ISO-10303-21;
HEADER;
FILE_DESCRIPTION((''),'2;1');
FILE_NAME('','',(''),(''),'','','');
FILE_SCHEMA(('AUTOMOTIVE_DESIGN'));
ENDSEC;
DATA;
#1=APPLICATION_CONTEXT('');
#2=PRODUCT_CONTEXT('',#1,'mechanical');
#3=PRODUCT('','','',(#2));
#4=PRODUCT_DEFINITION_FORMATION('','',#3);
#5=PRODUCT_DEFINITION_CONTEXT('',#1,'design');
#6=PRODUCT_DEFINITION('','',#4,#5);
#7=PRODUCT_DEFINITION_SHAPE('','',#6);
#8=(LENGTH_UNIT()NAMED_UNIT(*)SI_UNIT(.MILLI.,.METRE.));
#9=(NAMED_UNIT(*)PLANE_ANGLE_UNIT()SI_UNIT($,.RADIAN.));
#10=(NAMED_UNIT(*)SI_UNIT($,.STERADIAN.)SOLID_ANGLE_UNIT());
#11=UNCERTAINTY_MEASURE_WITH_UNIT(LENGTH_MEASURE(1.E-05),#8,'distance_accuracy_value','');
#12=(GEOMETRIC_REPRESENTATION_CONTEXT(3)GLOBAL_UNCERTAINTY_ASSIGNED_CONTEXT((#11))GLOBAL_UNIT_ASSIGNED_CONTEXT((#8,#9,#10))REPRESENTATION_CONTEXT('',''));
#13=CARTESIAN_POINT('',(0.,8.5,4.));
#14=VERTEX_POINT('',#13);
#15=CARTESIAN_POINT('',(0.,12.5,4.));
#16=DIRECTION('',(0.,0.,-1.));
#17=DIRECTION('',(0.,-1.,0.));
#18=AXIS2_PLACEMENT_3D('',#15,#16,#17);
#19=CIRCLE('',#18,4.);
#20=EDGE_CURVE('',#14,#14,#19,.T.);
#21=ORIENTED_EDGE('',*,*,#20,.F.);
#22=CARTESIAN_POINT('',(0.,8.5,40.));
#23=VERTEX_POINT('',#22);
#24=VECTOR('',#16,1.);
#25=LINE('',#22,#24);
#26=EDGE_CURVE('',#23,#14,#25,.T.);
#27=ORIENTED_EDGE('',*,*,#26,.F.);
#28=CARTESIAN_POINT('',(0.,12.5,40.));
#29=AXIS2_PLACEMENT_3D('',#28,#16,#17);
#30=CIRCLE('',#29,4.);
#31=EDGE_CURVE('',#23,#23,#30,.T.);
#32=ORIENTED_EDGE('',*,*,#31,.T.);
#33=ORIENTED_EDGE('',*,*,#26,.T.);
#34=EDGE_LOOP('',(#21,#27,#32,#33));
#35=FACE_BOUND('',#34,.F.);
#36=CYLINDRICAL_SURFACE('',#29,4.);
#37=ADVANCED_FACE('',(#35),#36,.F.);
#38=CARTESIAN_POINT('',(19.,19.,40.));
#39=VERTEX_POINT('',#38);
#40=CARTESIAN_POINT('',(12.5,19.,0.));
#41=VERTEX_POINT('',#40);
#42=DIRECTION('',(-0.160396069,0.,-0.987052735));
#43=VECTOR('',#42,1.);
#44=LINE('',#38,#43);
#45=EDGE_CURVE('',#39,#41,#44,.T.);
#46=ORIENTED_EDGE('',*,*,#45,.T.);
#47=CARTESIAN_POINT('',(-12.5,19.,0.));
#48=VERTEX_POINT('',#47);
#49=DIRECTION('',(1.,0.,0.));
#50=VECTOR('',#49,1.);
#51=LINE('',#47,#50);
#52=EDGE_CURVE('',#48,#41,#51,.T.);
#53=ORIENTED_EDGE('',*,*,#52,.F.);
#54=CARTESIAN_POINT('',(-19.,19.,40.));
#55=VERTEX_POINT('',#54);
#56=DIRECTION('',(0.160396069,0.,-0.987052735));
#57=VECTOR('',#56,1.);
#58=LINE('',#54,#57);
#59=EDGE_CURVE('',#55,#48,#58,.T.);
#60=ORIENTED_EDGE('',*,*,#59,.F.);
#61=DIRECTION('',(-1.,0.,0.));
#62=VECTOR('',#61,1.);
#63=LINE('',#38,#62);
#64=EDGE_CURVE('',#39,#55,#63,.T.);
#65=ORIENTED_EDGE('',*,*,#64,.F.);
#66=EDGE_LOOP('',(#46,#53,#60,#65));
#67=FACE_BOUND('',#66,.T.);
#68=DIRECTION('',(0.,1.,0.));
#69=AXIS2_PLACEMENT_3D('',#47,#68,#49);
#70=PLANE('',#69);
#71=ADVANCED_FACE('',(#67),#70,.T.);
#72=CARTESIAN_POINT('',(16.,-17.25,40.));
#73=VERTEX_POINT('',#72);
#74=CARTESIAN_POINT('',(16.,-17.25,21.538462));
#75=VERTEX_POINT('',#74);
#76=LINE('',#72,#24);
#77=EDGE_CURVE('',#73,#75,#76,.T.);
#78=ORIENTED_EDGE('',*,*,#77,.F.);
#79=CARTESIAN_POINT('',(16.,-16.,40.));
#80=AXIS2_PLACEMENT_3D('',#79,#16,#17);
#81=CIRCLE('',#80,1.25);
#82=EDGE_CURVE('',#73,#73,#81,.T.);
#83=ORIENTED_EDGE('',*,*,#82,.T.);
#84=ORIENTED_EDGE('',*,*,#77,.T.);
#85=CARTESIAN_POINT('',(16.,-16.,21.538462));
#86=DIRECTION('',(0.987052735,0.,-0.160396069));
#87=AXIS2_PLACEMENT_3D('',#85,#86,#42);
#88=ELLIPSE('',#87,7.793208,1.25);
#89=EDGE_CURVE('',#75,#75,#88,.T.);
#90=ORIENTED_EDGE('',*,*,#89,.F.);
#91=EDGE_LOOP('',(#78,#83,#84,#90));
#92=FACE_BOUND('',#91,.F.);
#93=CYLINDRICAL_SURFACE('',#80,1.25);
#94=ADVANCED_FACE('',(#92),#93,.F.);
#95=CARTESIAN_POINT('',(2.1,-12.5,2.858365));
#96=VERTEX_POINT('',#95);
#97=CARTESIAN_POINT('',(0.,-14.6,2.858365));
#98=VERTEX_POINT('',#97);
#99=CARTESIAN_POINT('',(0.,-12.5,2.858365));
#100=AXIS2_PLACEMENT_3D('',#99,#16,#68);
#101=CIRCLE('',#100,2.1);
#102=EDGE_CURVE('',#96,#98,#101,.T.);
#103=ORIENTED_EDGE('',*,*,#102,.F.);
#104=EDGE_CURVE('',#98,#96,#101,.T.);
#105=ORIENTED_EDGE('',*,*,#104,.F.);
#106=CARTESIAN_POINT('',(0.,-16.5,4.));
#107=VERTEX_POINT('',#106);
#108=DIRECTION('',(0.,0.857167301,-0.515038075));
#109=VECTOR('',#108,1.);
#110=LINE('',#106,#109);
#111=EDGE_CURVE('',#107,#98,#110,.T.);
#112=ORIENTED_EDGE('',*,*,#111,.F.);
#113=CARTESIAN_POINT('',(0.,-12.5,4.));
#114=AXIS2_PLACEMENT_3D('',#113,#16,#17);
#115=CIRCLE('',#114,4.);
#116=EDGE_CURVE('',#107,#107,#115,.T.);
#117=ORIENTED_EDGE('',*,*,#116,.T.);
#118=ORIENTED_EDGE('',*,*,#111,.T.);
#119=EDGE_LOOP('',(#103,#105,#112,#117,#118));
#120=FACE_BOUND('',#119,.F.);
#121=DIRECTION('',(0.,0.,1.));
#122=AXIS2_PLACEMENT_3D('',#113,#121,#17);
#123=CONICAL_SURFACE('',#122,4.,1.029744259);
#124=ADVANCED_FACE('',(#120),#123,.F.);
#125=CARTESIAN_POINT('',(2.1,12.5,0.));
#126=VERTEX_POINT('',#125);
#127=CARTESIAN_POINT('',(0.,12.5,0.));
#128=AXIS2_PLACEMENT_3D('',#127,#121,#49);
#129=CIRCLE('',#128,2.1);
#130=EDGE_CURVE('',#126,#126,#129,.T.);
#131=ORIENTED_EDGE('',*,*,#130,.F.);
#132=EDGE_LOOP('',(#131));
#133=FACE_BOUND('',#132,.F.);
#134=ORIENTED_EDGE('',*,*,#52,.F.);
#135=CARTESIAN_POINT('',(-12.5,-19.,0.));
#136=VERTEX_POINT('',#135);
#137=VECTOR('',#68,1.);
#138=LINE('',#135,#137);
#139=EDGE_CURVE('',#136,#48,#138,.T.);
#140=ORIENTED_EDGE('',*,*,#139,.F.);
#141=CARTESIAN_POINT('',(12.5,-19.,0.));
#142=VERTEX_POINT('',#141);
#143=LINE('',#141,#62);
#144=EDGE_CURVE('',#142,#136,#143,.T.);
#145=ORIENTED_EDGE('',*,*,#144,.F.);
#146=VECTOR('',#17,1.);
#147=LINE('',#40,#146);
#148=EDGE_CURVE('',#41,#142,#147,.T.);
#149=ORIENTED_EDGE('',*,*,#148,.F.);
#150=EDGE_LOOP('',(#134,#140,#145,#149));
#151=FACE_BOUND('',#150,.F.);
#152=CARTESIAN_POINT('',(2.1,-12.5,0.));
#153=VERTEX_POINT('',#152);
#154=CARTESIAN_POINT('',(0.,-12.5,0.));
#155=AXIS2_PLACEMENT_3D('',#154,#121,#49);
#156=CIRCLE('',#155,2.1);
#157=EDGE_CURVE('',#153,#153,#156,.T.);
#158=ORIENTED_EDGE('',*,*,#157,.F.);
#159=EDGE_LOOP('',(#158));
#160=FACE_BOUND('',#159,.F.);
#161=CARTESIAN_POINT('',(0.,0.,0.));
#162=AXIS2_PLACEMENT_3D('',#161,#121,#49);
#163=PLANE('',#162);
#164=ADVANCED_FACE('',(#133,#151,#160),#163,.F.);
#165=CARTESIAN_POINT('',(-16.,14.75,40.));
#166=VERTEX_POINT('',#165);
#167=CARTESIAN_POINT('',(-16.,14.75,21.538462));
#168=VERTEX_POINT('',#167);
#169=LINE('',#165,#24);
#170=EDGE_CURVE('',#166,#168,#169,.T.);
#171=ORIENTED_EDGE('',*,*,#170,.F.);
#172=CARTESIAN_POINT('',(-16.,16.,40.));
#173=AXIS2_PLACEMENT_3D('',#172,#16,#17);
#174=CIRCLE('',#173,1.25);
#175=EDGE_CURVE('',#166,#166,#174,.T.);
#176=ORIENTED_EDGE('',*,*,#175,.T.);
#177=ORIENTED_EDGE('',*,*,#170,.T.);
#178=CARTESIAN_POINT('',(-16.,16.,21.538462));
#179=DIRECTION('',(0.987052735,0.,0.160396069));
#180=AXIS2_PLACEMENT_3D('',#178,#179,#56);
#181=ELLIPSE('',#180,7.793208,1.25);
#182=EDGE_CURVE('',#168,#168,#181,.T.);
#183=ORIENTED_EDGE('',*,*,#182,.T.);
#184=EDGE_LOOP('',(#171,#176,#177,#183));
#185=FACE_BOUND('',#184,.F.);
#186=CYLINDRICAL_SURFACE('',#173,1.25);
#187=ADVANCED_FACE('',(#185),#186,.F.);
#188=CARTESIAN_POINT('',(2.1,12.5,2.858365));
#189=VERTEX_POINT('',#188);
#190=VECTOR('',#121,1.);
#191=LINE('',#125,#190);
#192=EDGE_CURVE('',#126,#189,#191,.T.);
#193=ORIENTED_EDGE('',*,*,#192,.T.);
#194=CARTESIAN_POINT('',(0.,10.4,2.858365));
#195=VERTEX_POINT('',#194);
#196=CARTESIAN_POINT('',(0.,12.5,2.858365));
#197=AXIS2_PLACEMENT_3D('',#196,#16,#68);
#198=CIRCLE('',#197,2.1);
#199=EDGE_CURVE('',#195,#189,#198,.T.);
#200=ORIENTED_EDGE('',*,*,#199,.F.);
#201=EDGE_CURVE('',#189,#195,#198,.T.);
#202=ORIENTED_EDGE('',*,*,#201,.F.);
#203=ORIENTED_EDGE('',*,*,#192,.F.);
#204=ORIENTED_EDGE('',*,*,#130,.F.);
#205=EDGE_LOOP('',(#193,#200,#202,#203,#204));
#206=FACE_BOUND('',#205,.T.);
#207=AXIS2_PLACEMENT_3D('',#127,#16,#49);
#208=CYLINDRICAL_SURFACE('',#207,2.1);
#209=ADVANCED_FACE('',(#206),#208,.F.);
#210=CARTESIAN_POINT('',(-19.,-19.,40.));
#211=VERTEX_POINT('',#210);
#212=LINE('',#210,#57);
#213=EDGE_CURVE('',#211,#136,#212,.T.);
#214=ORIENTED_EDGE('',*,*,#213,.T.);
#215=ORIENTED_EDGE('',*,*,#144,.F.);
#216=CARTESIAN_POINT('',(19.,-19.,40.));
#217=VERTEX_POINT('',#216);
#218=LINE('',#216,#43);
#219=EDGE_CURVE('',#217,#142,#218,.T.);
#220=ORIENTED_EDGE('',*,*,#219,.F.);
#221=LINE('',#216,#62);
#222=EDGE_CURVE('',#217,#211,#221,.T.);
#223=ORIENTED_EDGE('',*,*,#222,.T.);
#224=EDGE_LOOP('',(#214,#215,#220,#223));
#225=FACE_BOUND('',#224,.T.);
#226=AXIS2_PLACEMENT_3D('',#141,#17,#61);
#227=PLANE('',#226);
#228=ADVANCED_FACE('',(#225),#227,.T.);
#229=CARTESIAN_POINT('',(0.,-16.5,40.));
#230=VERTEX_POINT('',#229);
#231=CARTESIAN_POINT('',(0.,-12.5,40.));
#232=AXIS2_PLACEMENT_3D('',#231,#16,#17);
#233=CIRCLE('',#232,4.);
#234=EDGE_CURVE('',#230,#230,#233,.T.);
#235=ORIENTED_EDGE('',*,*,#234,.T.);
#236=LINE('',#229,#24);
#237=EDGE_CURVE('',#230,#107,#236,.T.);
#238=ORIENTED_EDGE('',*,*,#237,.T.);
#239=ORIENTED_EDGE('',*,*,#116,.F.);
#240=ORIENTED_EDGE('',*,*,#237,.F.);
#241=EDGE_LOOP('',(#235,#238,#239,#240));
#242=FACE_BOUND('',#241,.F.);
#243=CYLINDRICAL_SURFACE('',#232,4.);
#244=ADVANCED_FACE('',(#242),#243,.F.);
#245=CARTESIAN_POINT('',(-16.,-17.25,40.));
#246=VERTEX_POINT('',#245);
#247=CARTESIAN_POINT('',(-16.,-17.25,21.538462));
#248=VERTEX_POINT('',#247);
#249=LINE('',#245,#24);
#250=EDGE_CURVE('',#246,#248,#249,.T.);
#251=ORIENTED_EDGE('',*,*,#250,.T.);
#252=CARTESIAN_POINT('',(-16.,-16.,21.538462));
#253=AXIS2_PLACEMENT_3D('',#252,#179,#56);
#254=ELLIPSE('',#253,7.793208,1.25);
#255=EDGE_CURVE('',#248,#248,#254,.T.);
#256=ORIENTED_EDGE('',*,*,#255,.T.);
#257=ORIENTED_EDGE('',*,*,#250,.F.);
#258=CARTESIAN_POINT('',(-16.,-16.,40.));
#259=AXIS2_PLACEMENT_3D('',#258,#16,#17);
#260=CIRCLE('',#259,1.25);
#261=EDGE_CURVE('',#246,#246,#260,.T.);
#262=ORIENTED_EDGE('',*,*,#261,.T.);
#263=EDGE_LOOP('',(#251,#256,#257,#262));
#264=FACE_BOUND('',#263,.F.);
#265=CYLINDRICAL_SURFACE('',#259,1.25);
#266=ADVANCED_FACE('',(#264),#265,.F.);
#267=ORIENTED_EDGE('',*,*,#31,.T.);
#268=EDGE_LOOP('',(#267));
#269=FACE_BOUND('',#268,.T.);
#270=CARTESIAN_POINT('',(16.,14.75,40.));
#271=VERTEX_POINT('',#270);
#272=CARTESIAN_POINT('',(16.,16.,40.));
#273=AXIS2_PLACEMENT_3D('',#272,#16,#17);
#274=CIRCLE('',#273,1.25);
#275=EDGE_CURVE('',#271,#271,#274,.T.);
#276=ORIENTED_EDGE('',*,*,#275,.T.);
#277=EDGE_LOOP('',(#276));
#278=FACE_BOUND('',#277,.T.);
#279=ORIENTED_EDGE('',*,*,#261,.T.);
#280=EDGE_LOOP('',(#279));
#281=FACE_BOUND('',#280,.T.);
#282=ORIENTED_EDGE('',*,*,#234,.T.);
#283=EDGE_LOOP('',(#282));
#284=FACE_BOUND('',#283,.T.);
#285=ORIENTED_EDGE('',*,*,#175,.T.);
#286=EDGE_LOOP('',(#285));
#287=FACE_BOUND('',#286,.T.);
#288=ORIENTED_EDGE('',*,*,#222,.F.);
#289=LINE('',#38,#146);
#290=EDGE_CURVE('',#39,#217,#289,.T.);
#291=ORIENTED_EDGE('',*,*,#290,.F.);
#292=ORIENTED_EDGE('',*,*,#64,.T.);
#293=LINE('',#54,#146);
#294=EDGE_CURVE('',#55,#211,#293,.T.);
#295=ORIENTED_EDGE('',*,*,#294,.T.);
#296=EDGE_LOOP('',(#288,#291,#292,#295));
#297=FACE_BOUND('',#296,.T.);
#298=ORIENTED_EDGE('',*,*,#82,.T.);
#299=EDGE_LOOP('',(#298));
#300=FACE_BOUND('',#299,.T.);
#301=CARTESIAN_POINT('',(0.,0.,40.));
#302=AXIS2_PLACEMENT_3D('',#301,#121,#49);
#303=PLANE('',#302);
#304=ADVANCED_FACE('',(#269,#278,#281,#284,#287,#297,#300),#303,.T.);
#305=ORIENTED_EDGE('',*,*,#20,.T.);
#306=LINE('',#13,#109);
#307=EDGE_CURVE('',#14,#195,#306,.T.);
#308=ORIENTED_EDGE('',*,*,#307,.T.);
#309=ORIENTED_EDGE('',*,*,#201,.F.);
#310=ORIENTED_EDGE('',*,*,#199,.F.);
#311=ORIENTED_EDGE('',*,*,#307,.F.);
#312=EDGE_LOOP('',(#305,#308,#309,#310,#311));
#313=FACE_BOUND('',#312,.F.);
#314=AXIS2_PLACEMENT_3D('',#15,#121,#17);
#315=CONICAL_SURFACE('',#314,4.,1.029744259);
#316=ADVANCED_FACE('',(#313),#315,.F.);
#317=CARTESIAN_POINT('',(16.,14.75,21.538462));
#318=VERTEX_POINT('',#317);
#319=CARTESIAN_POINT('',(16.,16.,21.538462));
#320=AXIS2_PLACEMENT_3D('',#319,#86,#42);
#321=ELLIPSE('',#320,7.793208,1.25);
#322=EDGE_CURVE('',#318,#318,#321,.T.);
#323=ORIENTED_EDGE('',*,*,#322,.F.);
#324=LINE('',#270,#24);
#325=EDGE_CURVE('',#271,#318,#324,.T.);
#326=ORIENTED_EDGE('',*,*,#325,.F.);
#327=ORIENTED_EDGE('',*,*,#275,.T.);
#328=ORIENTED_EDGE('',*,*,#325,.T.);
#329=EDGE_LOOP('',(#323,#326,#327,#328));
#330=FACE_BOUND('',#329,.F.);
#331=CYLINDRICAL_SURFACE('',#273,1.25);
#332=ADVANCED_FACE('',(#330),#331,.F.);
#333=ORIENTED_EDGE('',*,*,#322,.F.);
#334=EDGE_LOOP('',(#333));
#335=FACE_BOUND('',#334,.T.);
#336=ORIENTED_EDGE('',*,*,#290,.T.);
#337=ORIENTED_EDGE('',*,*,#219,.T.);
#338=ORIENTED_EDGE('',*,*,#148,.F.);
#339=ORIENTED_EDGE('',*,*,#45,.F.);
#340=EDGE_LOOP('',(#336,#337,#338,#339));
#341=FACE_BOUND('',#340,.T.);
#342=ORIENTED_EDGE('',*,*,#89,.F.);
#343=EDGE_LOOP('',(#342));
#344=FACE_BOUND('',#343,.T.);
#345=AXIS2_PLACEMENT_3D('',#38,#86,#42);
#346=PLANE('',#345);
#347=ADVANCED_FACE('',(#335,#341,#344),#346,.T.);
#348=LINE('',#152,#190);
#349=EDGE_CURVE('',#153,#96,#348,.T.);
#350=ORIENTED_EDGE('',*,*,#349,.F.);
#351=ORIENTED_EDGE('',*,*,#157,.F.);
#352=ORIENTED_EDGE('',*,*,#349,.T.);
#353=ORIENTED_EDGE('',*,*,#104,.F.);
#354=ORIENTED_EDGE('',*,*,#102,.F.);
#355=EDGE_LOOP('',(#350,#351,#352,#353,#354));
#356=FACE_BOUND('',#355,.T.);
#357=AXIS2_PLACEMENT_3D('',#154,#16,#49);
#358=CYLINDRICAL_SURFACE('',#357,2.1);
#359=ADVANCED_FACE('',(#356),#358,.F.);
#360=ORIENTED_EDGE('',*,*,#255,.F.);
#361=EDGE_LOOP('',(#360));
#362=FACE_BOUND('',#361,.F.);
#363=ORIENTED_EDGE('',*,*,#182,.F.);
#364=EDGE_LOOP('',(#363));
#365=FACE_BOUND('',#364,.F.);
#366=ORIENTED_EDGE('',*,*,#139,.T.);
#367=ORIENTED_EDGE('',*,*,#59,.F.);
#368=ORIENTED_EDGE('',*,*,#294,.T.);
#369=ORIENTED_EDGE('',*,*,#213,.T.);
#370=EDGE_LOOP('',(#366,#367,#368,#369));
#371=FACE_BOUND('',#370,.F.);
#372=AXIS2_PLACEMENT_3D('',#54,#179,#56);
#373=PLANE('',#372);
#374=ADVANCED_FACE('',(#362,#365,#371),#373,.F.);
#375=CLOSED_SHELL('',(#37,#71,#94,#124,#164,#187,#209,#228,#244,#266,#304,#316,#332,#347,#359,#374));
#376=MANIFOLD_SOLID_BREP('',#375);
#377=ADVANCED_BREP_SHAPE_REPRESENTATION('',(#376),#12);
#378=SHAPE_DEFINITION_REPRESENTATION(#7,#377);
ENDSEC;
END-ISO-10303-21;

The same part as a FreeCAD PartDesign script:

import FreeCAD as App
import Part
import Sketcher
from FreeCAD import Vector
Q = App.Units.Quantity

doc = App.newDocument("Part")
body = doc.addObject("PartDesign::Body", "Body")

sketch1 = body.newObject("Sketcher::SketchObject", "Sketch")
sketch1.AttachmentSupport = (doc.getObject("XY_Plane"), [""])
sketch1.MapMode = "FlatFace"
sketch1.addGeometry([
    Part.LineSegment(Vector(-12.5, -19, 0), Vector(12.5, -19, 0)),
    Part.LineSegment(Vector(12.5, -19, 0), Vector(12.5, 19, 0)),
    Part.LineSegment(Vector(12.5, 19, 0), Vector(-12.5, 19, 0)),
    Part.LineSegment(Vector(-12.5, 19, 0), Vector(-12.5, -19, 0)),
    Part.Circle(Vector(0, -12.5, 0), Vector(0, 0, 1), 2.1),
    Part.Circle(Vector(0, 12.5, 0), Vector(0, 0, 1), 2.1),
], False)
sketch1.addConstraint([
    Sketcher.Constraint("Coincident", 0, 2, 1, 1),
    Sketcher.Constraint("Coincident", 1, 2, 2, 1),
    Sketcher.Constraint("Coincident", 2, 2, 3, 1),
    Sketcher.Constraint("Coincident", 3, 2, 0, 1),
    Sketcher.Constraint("Horizontal", 0),
    Sketcher.Constraint("Vertical", 1),
    Sketcher.Constraint("Horizontal", 2),
    Sketcher.Constraint("Vertical", 3),
    Sketcher.Constraint("Equal", 4, 5),
    Sketcher.Constraint("Symmetric", 4, 3, 5, 3, -1, 1),
    Sketcher.Constraint("Symmetric", 0, 2, 2, 2, -1, 1),
    Sketcher.Constraint("PointOnObject", 4, 3, -2),
    Sketcher.Constraint("Diameter", 4, Q("4.2 mm")),
    Sketcher.Constraint("DistanceX", 0, 1, 0, 2, Q("25 mm")),
    Sketcher.Constraint("DistanceY", 1, 1, 1, 2, Q("38 mm")),
    Sketcher.Constraint("DistanceY", 4, 3, 5, 3, Q("25 mm")),
])
pad1 = body.newObject("PartDesign::Pad", "Pad")
pad1.Profile = sketch1
pad1.Length = 40

sketch2 = body.newObject("Sketcher::SketchObject", "Sketch001")
sketch2.AttachmentSupport = (doc.getObject("XZ_Plane"), [""])
sketch2.MapMode = "FlatFace"
sketch2.AttachmentOffset = App.Placement(Vector(0, 0, -19), App.Rotation())
sketch2.addGeometry([
    Part.LineSegment(Vector(12.5, 0, 0), Vector(12.5, 40, 0)),
    Part.LineSegment(Vector(12.5, 40, 0), Vector(19, 40, 0)),
    Part.LineSegment(Vector(19, 40, 0), Vector(12.5, 0, 0)),
    Part.LineSegment(Vector(-12.5, 40, 0), Vector(-12.5, 0, 0)),
    Part.LineSegment(Vector(-12.5, 0, 0), Vector(-19, 40, 0)),
    Part.LineSegment(Vector(-19, 40, 0), Vector(-12.5, 40, 0)),
], False)
sketch2.addConstraint([
    Sketcher.Constraint("Coincident", 0, 2, 1, 1),
    Sketcher.Constraint("Coincident", 1, 2, 2, 1),
    Sketcher.Constraint("Coincident", 2, 2, 0, 1),
    Sketcher.Constraint("Coincident", 3, 2, 4, 1),
    Sketcher.Constraint("Coincident", 4, 2, 5, 1),
    Sketcher.Constraint("Coincident", 5, 2, 3, 1),
    Sketcher.Constraint("Vertical", 0),
    Sketcher.Constraint("Horizontal", 1),
    Sketcher.Constraint("Vertical", 3),
    Sketcher.Constraint("Horizontal", 5),
    Sketcher.Constraint("Symmetric", 2, 2, 3, 2, -1, 1),
    Sketcher.Constraint("Symmetric", 1, 2, 4, 2, -2),
    Sketcher.Constraint("PointOnObject", 2, 2, -1),
    Sketcher.Constraint("DistanceX", 1, 1, 1, 2, Q("6.5 mm")),
    Sketcher.Constraint("DistanceY", 0, 1, 0, 2, Q("40 mm")),
    Sketcher.Constraint("DistanceX", -1, 1, 1, 2, Q("19 mm")),
])
pad2 = body.newObject("PartDesign::Pad", "Pad001")
pad2.Profile = sketch2
pad2.Length = 38

sketch3 = body.newObject("Sketcher::SketchObject", "Sketch002")
sketch3.AttachmentSupport = (doc.getObject("XY_Plane"), [""])
sketch3.MapMode = "FlatFace"
sketch3.AttachmentOffset = App.Placement(Vector(0, 0, 40), App.Rotation())
sketch3.addGeometry([
    Part.Circle(Vector(-16, 16, 0), Vector(0, 0, 1), 1.25),
    Part.Circle(Vector(16, 16, 0), Vector(0, 0, 1), 1.25),
    Part.Circle(Vector(-16, -16, 0), Vector(0, 0, 1), 1.25),
    Part.Circle(Vector(16, -16, 0), Vector(0, 0, 1), 1.25),
], False)
sketch3.addConstraint([
    Sketcher.Constraint("Equal", 0, 1),
    Sketcher.Constraint("Equal", 1, 2),
    Sketcher.Constraint("Equal", 2, 3),
    Sketcher.Constraint("Symmetric", 1, 3, 2, 3, -1, 1),
    Sketcher.Constraint("Symmetric", 0, 3, 3, 3, -1, 1),
    Sketcher.Constraint("Symmetric", 0, 3, 1, 3, -2),
    Sketcher.Constraint("Diameter", 0, Q("2.5 mm")),
    Sketcher.Constraint("DistanceX", 0, 3, -1, 1, Q("16 mm")),
    Sketcher.Constraint("DistanceY", -1, 1, 0, 3, Q("16 mm")),
])
doc.recompute()
hole = body.newObject("PartDesign::Hole", "Hole")
hole.Profile = sketch3
hole.ThreadType = "None"
hole.Diameter = 2.5
hole.DepthType = "ThroughAll"

sketch4 = body.newObject("Sketcher::SketchObject", "Sketch003")
sketch4.AttachmentSupport = (doc.getObject("XY_Plane"), [""])
sketch4.MapMode = "FlatFace"
sketch4.AttachmentOffset = App.Placement(Vector(0, 0, 40), App.Rotation())
sketch4.addGeometry(Part.Circle(Vector(0, -12.5, 0), Vector(0, 0, 1), 4), False)
sketch4.addConstraint([
    Sketcher.Constraint("PointOnObject", 0, 3, -2),
    Sketcher.Constraint("Diameter", 0, Q("8 mm")),
    Sketcher.Constraint("DistanceY", 0, 3, -1, 1, Q("12.5 mm")),
])
doc.recompute()
hole2 = body.newObject("PartDesign::Hole", "Hole001")
hole2.Profile = sketch4
hole2.ThreadType = "None"
hole2.Diameter = 8
hole2.DepthType = "Dimension"
hole2.Depth = 36
hole2.DrillPoint = "Angled"
hole2.DrillPointAngle = 118

sketch5 = body.newObject("Sketcher::SketchObject", "Sketch004")
sketch5.AttachmentSupport = (doc.getObject("XY_Plane"), [""])
sketch5.MapMode = "FlatFace"
sketch5.AttachmentOffset = App.Placement(Vector(0, 0, 40), App.Rotation())
sketch5.addGeometry(Part.Circle(Vector(0, 12.5, 0), Vector(0, 0, 1), 4), False)
sketch5.addConstraint([
    Sketcher.Constraint("PointOnObject", 0, 3, -2),
    Sketcher.Constraint("Diameter", 0, Q("8 mm")),
    Sketcher.Constraint("DistanceY", -1, 1, 0, 3, Q("12.5 mm")),
])
doc.recompute()
hole3 = body.newObject("PartDesign::Hole", "Hole002")
hole3.Profile = sketch5
hole3.ThreadType = "None"
hole3.Diameter = 8
hole3.DepthType = "Dimension"
hole3.Depth = 36
hole3.DrillPoint = "Angled"
hole3.DrillPointAngle = 118

doc.recompute()
